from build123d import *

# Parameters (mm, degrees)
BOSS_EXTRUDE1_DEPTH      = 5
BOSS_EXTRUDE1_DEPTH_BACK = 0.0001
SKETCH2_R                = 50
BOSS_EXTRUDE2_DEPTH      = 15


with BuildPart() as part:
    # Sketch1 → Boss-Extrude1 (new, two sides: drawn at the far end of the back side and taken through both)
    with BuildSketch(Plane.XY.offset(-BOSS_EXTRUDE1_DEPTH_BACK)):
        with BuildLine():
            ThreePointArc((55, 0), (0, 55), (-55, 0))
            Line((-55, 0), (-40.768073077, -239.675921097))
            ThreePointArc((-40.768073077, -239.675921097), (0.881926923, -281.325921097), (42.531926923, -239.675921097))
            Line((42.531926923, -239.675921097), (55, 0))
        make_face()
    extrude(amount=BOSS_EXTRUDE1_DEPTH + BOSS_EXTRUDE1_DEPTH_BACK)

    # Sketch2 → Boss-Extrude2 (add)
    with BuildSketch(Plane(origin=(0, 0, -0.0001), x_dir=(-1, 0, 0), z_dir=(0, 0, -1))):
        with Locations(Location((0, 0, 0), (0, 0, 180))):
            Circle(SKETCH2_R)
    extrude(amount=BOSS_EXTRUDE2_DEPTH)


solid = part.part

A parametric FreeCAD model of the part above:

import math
import FreeCAD as App
import Part
import Sketcher

V = App.Vector

doc = App.newDocument("Part")
body = doc.addObject("PartDesign::Body", "Body")

# Sketch on XY plane
sketch1 = body.newObject("Sketcher::SketchObject", "Sketch")
sketch1.AttachmentSupport = (doc.getObject("XY_Plane"), [""])
sketch1.MapMode = "FlatFace"
sketch1.addGeometry(Part.ArcOfCircle(Part.Circle(V(0, 0, 0), V(0, 0, 1), 55), math.radians(0), math.radians(180)), False)
sketch1.addGeometry(Part.LineSegment(V(-55, 0, 0), V(-41, -240, 0)), False)
sketch1.addGeometry(Part.ArcOfCircle(Part.Circle(V(1, -240, 0), V(0, 0, 1), 42), math.radians(180), math.radians(360)), False)
sketch1.addGeometry(Part.LineSegment(V(43, -240, 0), V(55, 0, 0)), False)
sketch1.addConstraint(Sketcher.Constraint("Coincident", 0, 2, 1, 1))
sketch1.addConstraint(Sketcher.Constraint("Coincident", 1, 2, 2, 1))
sketch1.addConstraint(Sketcher.Constraint("Coincident", 2, 2, 3, 1))
sketch1.addConstraint(Sketcher.Constraint("Coincident", 3, 2, 0, 1))
sketch1.addConstraint(Sketcher.Constraint("Coincident", 0, 3, -1, 1))
sketch1.addConstraint(Sketcher.Constraint("PointOnObject", 0, 2, -1))
sketch1.addConstraint(Sketcher.Constraint("PointOnObject", 3, 2, -1))
sketch1.addConstraint(Sketcher.Constraint("Horizontal", 2, 3, 1, 2))
sketch1.addConstraint(Sketcher.Constraint("Horizontal", 1, 2, 2, 2))
sketch1.addConstraint(Sketcher.Constraint("Radius", 0, 55.0))
sketch1.addConstraint(Sketcher.Constraint("Radius", 2, 41.65))
sketch1.addConstraint(Sketcher.Constraint("Distance", 3, 240.0))
sketch1.addConstraint(Sketcher.Constraint("DistanceY", 2, 3, -1, 1, 239.675921))
pad1 = body.newObject("PartDesign::Pad", "Pad")
pad1.Profile = sketch1
pad1.Type = "TwoLengths"
pad1.Length = 5
pad1.Length2 = 0.0001

# Sketch on XY plane
sketch2 = body.newObject("Sketcher::SketchObject", "Sketch001")
sketch2.AttachmentSupport = (doc.getObject("XY_Plane"), [""])
sketch2.MapMode = "FlatFace"
sketch2.AttachmentOffset = App.Placement(V(0, 0, -0.0001), App.Rotation())
sketch2.addGeometry(Part.Circle(V(0, 0, 0), V(0, 0, 1), 50), False)
sketch2.addConstraint(Sketcher.Constraint("Coincident", 0, 3, -1, 1))
sketch2.addConstraint(Sketcher.Constraint("Diameter", 0, 100.0))
pad2 = body.newObject("PartDesign::Pad", "Pad001")
pad2.Profile = sketch2
pad2.Length = 15
pad2.Reversed = True

doc.recompute()
